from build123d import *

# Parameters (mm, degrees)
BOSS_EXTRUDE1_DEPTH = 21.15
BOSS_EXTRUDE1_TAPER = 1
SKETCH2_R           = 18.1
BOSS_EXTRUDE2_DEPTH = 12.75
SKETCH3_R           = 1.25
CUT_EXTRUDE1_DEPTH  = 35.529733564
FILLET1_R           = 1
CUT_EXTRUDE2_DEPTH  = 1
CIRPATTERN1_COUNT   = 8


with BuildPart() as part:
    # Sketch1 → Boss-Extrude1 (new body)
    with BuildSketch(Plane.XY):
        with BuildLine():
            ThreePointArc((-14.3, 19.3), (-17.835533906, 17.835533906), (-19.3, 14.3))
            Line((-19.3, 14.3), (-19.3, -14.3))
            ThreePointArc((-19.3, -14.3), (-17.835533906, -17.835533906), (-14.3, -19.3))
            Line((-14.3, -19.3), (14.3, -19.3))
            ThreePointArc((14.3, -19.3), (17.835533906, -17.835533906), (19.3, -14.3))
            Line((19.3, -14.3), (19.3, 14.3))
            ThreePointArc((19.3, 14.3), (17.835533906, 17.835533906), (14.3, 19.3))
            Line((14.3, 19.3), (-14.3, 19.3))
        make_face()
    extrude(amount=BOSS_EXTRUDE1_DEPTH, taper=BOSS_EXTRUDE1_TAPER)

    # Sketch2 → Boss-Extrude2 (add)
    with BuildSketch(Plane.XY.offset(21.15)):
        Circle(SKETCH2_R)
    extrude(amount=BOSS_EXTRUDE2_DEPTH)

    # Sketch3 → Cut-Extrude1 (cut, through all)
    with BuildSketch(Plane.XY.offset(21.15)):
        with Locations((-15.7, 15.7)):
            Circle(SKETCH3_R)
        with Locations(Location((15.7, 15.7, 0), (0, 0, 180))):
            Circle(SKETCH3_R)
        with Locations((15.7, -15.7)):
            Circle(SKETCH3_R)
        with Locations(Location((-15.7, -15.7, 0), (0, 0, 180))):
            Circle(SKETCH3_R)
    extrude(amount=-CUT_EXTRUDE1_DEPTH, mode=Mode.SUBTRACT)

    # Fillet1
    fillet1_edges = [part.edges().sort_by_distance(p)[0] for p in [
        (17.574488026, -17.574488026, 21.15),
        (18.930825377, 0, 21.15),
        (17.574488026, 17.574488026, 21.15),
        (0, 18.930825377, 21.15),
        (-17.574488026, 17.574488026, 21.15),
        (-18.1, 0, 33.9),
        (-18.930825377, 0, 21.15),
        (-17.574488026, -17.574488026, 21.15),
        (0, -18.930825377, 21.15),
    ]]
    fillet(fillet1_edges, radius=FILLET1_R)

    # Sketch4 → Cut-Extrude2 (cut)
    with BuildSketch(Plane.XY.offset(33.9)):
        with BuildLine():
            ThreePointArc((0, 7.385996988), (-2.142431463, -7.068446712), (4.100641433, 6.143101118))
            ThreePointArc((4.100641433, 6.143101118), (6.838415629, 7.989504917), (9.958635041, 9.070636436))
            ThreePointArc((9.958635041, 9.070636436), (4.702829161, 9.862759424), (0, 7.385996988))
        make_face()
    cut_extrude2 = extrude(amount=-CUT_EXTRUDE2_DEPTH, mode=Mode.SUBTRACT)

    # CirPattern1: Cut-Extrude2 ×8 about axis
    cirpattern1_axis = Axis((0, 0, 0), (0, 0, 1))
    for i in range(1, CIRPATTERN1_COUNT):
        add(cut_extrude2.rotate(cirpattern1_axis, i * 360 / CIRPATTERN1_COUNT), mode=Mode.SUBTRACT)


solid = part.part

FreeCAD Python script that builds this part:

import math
import FreeCAD as App
import Part
import Sketcher


def edges_at(feature, points):
    """Names of the edges that pass closest to the given points."""
    edges = feature.Shape.Edges
    near = lambda p: min(range(len(edges)), key=lambda i: edges[i].distToShape(Part.Vertex(*p))[0])
    return sorted({f"Edge{near(p) + 1}" for p in points})

doc = App.newDocument("Part")
params = doc.addObject("Spreadsheet::Sheet", "Params")
for row, (alias, value) in enumerate([
    ("sketch1_radius", "5 mm"),
    ("sketch1_width", "28.6 mm"),
    ("pad1_length", "21.15 mm"),
    ("pad1_taper", "-1 deg"),
    ("sketch2_diameter", "36.2 mm"),
    ("pad2_length", "12.75 mm"),
    ("sketch3_diameter", "2.5 mm"),
    ("fillet_radius", "1 mm"),
    ("pocket2_length", "1 mm"),
], start=1):
    params.set(f"A{row}", alias)
    params.set(f"B{row}", "=" + value)
    params.setAlias(f"B{row}", alias)

body = doc.addObject("PartDesign::Body", "Body")

sketch1 = body.newObject("Sketcher::SketchObject", "Sketch")
sketch1.AttachmentSupport = (doc.getObject("XY_Plane"), [""])
sketch1.MapMode = "FlatFace"
sketch1.addGeometry(Part.ArcOfCircle(Part.Circle(App.Vector(-14.3, 14.3, 0), App.Vector(0, 0, 1), 5), math.radians(90), math.radians(180)), False)
sketch1.addGeometry(Part.LineSegment(App.Vector(-19.3, 14.3, 0), App.Vector(-19.3, -14.3, 0)), False)
sketch1.addGeometry(Part.ArcOfCircle(Part.Circle(App.Vector(-14.3, -14.3, 0), App.Vector(0, 0, 1), 5), math.radians(180), math.radians(270)), False)
sketch1.addGeometry(Part.LineSegment(App.Vector(-14.3, -19.3, 0), App.Vector(14.3, -19.3, 0)), False)
sketch1.addGeometry(Part.ArcOfCircle(Part.Circle(App.Vector(14.3, -14.3, 0), App.Vector(0, 0, 1), 5), math.radians(-90), math.radians(0)), False)
sketch1.addGeometry(Part.LineSegment(App.Vector(19.3, -14.3, 0), App.Vector(19.3, 14.3, 0)), False)
sketch1.addGeometry(Part.ArcOfCircle(Part.Circle(App.Vector(14.3, 14.3, 0), App.Vector(0, 0, 1), 5), math.radians(0), math.radians(90)), False)
sketch1.addGeometry(Part.LineSegment(App.Vector(14.3, 19.3, 0), App.Vector(-14.3, 19.3, 0)), False)
sketch1.addConstraint(Sketcher.Constraint("Tangent", 0, 2, 1, 1))
sketch1.addConstraint(Sketcher.Constraint("Tangent", 1, 2, 2, 1))
sketch1.addConstraint(Sketcher.Constraint("Tangent", 2, 2, 3, 1))
sketch1.addConstraint(Sketcher.Constraint("Tangent", 3, 2, 4, 1))
sketch1.addConstraint(Sketcher.Constraint("Tangent", 4, 2, 5, 1))
sketch1.addConstraint(Sketcher.Constraint("Tangent", 5, 2, 6, 1))
sketch1.addConstraint(Sketcher.Constraint("Tangent", 6, 2, 7, 1))
sketch1.addConstraint(Sketcher.Constraint("Tangent", 7, 2, 0, 1))
sketch1.addConstraint(Sketcher.Constraint("Vertical", 1))
sketch1.addConstraint(Sketcher.Constraint("Horizontal", 3))
sketch1.addConstraint(Sketcher.Constraint("Vertical", 5))
sketch1.addConstraint(Sketcher.Constraint("Horizontal", 7))
sketch1.addConstraint(Sketcher.Constraint("Equal", 0, 2))
sketch1.addConstraint(Sketcher.Constraint("Equal", 2, 4))
sketch1.addConstraint(Sketcher.Constraint("Equal", 4, 6))
sketch1.addConstraint(Sketcher.Constraint("Symmetric", 0, 3, 4, 3, -1, 1))
sketch1.addConstraint(Sketcher.Constraint("Equal", 7, 1))
sketch1.addConstraint(Sketcher.Constraint("Radius", 0, 5.0))
sketch1.addConstraint(Sketcher.Constraint("DistanceX", 3, 1, 3, 2, 28.6))
sketch1.setExpression("Constraints[17]", "Params.sketch1_radius")
sketch1.setExpression("Constraints[18]", "Params.sketch1_width")
pad1 = body.newObject("PartDesign::Pad", "Pad")
pad1.Profile = sketch1
pad1.setExpression("Length", "Params.pad1_length")
pad1.setExpression("TaperAngle", "Params.pad1_taper")

sketch2 = body.newObject("Sketcher::SketchObject", "Sketch001")
sketch2.AttachmentSupport = (doc.getObject("XY_Plane"), [""])
sketch2.MapMode = "FlatFace"
sketch2.AttachmentOffset = App.Placement(App.Vector(0, 0, 21.15), App.Rotation())
sketch2.addGeometry(Part.Circle(App.Vector(0, 0, 0), App.Vector(0, 0, 1), 18.1), False)
sketch2.addConstraint(Sketcher.Constraint("Coincident", 0, 3, -1, 1))
sketch2.addConstraint(Sketcher.Constraint("Diameter", 0, 36.2))
sketch2.setExpression("Constraints[1]", "Params.sketch2_diameter")
pad2 = body.newObject("PartDesign::Pad", "Pad001")
pad2.Profile = sketch2
pad2.setExpression("Length", "Params.pad2_length")

sketch3 = body.newObject("Sketcher::SketchObject", "Sketch002")
sketch3.AttachmentSupport = (doc.getObject("XY_Plane"), [""])
sketch3.MapMode = "FlatFace"
sketch3.AttachmentOffset = App.Placement(App.Vector(0, 0, 21.15), App.Rotation())
sketch3.addGeometry(Part.Circle(App.Vector(-15.7, 15.7, 0), App.Vector(0, 0, 1), 1.25), False)
sketch3.addGeometry(Part.Circle(App.Vector(15.7, 15.7, 0), App.Vector(0, 0, 1), 1.25), False)
sketch3.addGeometry(Part.Circle(App.Vector(15.7, -15.7, 0), App.Vector(0, 0, 1), 1.25), False)
sketch3.addGeometry(Part.Circle(App.Vector(-15.7, -15.7, 0), App.Vector(0, 0, 1), 1.25), False)
sketch3.addConstraint(Sketcher.Constraint("Equal", 0, 1))
sketch3.addConstraint(Sketcher.Constraint("Equal", 1, 2))
sketch3.addConstraint(Sketcher.Constraint("Equal", 2, 3))
sketch3.addConstraint(Sketcher.Constraint("Symmetric", 0, 3, 2, 3, -1, 1))
sketch3.addConstraint(Sketcher.Constraint("Symmetric", 1, 3, 3, 3, -1, 1))
sketch3.addConstraint(Sketcher.Constraint("Symmetric", 0, 3, 1, 3, -2))
sketch3.addConstraint(Sketcher.Constraint("Diameter", 0, 2.5))
sketch3.addConstraint(Sketcher.Constraint("DistanceX", 0, 3, -1, 1, 15.7))
sketch3.addConstraint(Sketcher.Constraint("DistanceY", -1, 1, 0, 3, 15.7))
sketch3.setExpression("Constraints[6]", "Params.sketch3_diameter")
pocket1 = body.newObject("PartDesign::Pocket", "Pocket")
pocket1.Profile = sketch3
pocket1.Type = "ThroughAll"
doc.recompute()

fillet = body.newObject("PartDesign::Fillet", "Fillet")
fillet.Base = (pocket1, edges_at(pocket1, [
    (17.574, -17.574, 21.15),
    (18.931, 0, 21.15),
    (17.574, 17.574, 21.15),
    (0, 18.931, 21.15),
    (-17.574, 17.574, 21.15),
    (-18.1, 0, 33.9),
    (-18.931, 0, 21.15),
    (-17.574, -17.574, 21.15),
    (0, -18.931, 21.15),
]))
fillet.setExpression("Radius", "Params.fillet_radius")

sketch4 = body.newObject("Sketcher::SketchObject", "Sketch003")
sketch4.AttachmentSupport = (doc.getObject("XY_Plane"), [""])
sketch4.MapMode = "FlatFace"
sketch4.AttachmentOffset = App.Placement(App.Vector(0, 0, 33.9), App.Rotation())
sketch4.addGeometry(Part.ArcOfCircle(Part.Circle(App.Vector(0, 0, 0), App.Vector(0, 0, 1), 7.385997), math.radians(90), math.radians(416.276106)), False)
sketch4.addGeometry(Part.ArcOfCircle(Part.Circle(App.Vector(12.536439, -3.412231, 0), App.Vector(0, 0, 1), 12.746257), math.radians(101.667984), math.radians(131.439245)), False)
sketch4.addGeometry(Part.ArcOfCircle(Part.Circle(App.Vector(6.124134, 1.460811, 0), App.Vector(0, 0, 1), 8.521317), math.radians(63.257003), math.radians(135.945933)), False)
sketch4.addConstraint(Sketcher.Constraint("Coincident", 0, 2, 1, 2))
sketch4.addConstraint(Sketcher.Constraint("Coincident", 1, 1, 2, 1))
sketch4.addConstraint(Sketcher.Constraint("Coincident", 2, 2, 0, 1))
sketch4.addConstraint(Sketcher.Constraint("Coincident", 0, 3, -1, 1))
sketch4.addConstraint(Sketcher.Constraint("PointOnObject", 2, 2, -2))
sketch4.addConstraint(Sketcher.Constraint("Radius", 0, 7.385997))
sketch4.addConstraint(Sketcher.Constraint("Radius", 1, 12.746257))
sketch4.addConstraint(Sketcher.Constraint("Radius", 2, 8.521317))
sketch4.addConstraint(Sketcher.Constraint("DistanceY", -1, 1, 0, 2, 6.143101))
sketch4.addConstraint(Sketcher.Constraint("DistanceX", 2, 3, 1, 1, 3.834501))
sketch4.addConstraint(Sketcher.Constraint("DistanceX", -1, 1, 1, 3, 12.536439))
pocket2 = body.newObject("PartDesign::Pocket", "Pocket001")
pocket2.Profile = sketch4
pocket2.setExpression("Length", "Params.pocket2_length")
doc.recompute()

polarpattern = body.newObject("PartDesign::PolarPattern", "PolarPattern")
polarpattern.Originals = [pocket2]
polarpattern.Axis = (doc.getObject("Z_Axis"), [""])
polarpattern.Angle = 360
polarpattern.Occurrences = 8
body.Tip = polarpattern

doc.recompute()
